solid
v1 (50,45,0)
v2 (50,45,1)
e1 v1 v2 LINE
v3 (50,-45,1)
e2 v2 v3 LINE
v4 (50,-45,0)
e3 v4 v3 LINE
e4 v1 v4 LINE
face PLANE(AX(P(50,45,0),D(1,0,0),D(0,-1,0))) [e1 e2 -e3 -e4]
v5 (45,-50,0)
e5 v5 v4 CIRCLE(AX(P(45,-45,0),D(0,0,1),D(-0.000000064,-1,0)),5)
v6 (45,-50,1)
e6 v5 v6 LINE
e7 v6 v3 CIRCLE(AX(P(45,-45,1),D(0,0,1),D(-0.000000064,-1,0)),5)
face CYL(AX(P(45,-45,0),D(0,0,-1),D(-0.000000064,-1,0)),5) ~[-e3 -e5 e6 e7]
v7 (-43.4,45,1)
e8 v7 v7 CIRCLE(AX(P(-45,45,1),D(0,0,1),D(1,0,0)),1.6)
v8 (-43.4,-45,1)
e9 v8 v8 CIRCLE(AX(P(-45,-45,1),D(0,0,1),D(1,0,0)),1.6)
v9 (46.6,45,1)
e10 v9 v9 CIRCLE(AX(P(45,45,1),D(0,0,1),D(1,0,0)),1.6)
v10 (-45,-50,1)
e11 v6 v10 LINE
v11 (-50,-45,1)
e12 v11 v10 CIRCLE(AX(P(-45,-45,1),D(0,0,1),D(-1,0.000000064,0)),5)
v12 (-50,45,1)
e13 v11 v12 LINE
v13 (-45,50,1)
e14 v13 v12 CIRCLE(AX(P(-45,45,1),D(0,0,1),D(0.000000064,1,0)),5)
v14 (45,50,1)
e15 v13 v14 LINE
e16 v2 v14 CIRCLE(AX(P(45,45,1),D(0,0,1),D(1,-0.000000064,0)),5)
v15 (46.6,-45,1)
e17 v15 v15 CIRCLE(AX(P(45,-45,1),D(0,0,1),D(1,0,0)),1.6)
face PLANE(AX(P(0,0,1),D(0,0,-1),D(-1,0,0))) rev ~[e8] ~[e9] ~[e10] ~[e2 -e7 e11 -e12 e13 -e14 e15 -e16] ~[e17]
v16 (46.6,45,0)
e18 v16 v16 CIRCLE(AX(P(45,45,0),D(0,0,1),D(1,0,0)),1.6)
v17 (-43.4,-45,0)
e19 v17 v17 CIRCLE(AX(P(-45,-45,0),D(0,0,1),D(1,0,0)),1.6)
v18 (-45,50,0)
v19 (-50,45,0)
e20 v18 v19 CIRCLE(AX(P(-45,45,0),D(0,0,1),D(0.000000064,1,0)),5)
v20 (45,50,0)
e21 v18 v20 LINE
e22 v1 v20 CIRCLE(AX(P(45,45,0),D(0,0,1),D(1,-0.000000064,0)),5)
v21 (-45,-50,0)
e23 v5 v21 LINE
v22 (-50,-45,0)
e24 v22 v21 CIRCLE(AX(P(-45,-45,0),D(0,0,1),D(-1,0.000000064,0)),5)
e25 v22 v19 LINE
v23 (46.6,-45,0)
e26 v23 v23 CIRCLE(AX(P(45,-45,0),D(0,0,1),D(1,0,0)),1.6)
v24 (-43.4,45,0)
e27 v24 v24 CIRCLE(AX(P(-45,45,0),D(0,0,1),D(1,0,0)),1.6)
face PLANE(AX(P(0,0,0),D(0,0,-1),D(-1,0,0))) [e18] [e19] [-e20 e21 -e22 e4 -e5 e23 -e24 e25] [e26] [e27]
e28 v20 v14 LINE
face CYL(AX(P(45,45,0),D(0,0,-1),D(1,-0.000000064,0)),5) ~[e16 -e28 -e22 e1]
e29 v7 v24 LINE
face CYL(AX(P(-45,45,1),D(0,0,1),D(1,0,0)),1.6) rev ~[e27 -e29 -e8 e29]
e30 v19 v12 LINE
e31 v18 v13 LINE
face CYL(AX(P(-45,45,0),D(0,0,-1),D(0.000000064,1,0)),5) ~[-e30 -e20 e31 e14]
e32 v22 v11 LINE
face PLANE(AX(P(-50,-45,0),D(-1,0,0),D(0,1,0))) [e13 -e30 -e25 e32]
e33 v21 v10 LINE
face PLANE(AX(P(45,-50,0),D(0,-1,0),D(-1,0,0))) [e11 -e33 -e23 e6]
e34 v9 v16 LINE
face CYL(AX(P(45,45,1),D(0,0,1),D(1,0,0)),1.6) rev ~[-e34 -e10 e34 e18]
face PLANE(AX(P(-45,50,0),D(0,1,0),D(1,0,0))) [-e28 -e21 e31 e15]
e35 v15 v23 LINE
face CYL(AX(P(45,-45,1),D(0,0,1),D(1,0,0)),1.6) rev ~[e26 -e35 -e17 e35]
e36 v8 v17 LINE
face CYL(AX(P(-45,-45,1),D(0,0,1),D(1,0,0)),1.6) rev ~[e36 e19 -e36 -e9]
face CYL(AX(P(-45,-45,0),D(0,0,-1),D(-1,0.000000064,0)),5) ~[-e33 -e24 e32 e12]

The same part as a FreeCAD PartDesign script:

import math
import FreeCAD as App
import Part
import Sketcher

V = App.Vector

doc = App.newDocument("Part")
params = doc.addObject("Spreadsheet::Sheet", "Params")
for row, (alias, value) in enumerate([
    ("sketch1_radius", "5 mm"),
    ("sketch1_width", "90 mm"),
    ("pad1_length", "1 mm"),
    ("sketch2_diameter", "3.2 mm"),
], start=1):
    params.set(f"A{row}", alias)
    params.set(f"B{row}", "=" + value)
    params.setAlias(f"B{row}", alias)

body = doc.addObject("PartDesign::Body", "Body")

# Sketch on XY plane
sketch1 = doc.addObject("Sketcher::SketchObject", "Sketch")
body.addObject(sketch1)
sketch1.AttachmentSupport = (doc.XY_Plane, [""])
sketch1.MapMode = "FlatFace"
sketch1.addGeometry([
    Part.LineSegment(V(45, 50, 0), V(-45, 50, 0)),  # 0
    Part.ArcOfCircle(Part.Circle(V(-45, 45, 0), V(0, 0, 1), 5), math.radians(90), math.radians(180)),  # 1
    Part.LineSegment(V(-50, 45, 0), V(-50, -45, 0)),  # 2
    Part.ArcOfCircle(Part.Circle(V(-45, -45, 0), V(0, 0, 1), 5), math.radians(180), math.radians(270)),  # 3
    Part.LineSegment(V(-45, -50, 0), V(45, -50, 0)),  # 4
    Part.ArcOfCircle(Part.Circle(V(45, -45, 0), V(0, 0, 1), 5), math.radians(-90), math.radians(0)),  # 5
    Part.LineSegment(V(50, -45, 0), V(50, 45, 0)),  # 6
    Part.ArcOfCircle(Part.Circle(V(45, 45, 0), V(0, 0, 1), 5), math.radians(0), math.radians(90)),  # 7
], False)
sketch1.addConstraint([
    Sketcher.Constraint("Tangent", 0, 2, 1, 1),
    Sketcher.Constraint("Tangent", 1, 2, 2, 1),
    Sketcher.Constraint("Tangent", 2, 2, 3, 1),
    Sketcher.Constraint("Tangent", 3, 2, 4, 1),
    Sketcher.Constraint("Tangent", 4, 2, 5, 1),
    Sketcher.Constraint("Tangent", 5, 2, 6, 1),
    Sketcher.Constraint("Tangent", 6, 2, 7, 1),
    Sketcher.Constraint("Tangent", 7, 2, 0, 1),
    Sketcher.Constraint("Horizontal", 0),
    Sketcher.Constraint("Vertical", 2),
    Sketcher.Constraint("Horizontal", 4),
    Sketcher.Constraint("Vertical", 6),
    Sketcher.Constraint("Equal", 1, 3),
    Sketcher.Constraint("Equal", 3, 5),
    Sketcher.Constraint("Equal", 5, 7),
    Sketcher.Constraint("Symmetric", 1, 3, 5, 3, -1, 1),
    Sketcher.Constraint("Equal", 4, 2),
    Sketcher.Constraint("Radius", 1, 5.0),
    Sketcher.Constraint("DistanceX", 0, 2, 0, 1, 90.0),
])
sketch1.setExpression("Constraints[17]", "Params.sketch1_radius")
sketch1.setExpression("Constraints[18]", "Params.sketch1_width")
pad1 = doc.addObject("PartDesign::Pad", "Pad")
body.addObject(pad1)
pad1.Profile = sketch1
pad1.setExpression("Length", "Params.pad1_length")

# Sketch on XY plane
sketch2 = doc.addObject("Sketcher::SketchObject", "Sketch001")
body.addObject(sketch2)
sketch2.AttachmentSupport = (doc.XY_Plane, [""])
sketch2.MapMode = "FlatFace"
sketch2.AttachmentOffset = App.Placement(V(0, 0, 1), App.Rotation())
sketch2.addGeometry([
    Part.Circle(V(-45, 45, 0), V(0, 0, 1), 1.6),
    Part.Circle(V(45, -45, 0), V(0, 0, 1), 1.6),
    Part.Circle(V(-45, -45, 0), V(0, 0, 1), 1.6),
    Part.Circle(V(45, 45, 0), V(0, 0, 1), 1.6),
], False)
sketch2.addConstraint([
    Sketcher.Constraint("Equal", 0, 1),
    Sketcher.Constraint("Equal", 1, 2),
    Sketcher.Constraint("Equal", 2, 3),
    Sketcher.Constraint("Symmetric", 0, 3, 1, 3, -1, 1),
    Sketcher.Constraint("Symmetric", 2, 3, 3, 3, -1, 1),
    Sketcher.Constraint("Symmetric", 1, 3, 2, 3, -2),
    Sketcher.Constraint("Diameter", 0, 3.2),
    Sketcher.Constraint("DistanceX", 0, 3, -1, 1, 45.0),
    Sketcher.Constraint("DistanceY", -1, 1, 0, 3, 45.0),
])
sketch2.setExpression("Constraints[6]", "Params.sketch2_diameter")
pocket1 = doc.addObject("PartDesign::Pocket", "Pocket")
body.addObject(pocket1)
pocket1.Profile = sketch2
pocket1.Type = "ThroughAll"

doc.recompute()
